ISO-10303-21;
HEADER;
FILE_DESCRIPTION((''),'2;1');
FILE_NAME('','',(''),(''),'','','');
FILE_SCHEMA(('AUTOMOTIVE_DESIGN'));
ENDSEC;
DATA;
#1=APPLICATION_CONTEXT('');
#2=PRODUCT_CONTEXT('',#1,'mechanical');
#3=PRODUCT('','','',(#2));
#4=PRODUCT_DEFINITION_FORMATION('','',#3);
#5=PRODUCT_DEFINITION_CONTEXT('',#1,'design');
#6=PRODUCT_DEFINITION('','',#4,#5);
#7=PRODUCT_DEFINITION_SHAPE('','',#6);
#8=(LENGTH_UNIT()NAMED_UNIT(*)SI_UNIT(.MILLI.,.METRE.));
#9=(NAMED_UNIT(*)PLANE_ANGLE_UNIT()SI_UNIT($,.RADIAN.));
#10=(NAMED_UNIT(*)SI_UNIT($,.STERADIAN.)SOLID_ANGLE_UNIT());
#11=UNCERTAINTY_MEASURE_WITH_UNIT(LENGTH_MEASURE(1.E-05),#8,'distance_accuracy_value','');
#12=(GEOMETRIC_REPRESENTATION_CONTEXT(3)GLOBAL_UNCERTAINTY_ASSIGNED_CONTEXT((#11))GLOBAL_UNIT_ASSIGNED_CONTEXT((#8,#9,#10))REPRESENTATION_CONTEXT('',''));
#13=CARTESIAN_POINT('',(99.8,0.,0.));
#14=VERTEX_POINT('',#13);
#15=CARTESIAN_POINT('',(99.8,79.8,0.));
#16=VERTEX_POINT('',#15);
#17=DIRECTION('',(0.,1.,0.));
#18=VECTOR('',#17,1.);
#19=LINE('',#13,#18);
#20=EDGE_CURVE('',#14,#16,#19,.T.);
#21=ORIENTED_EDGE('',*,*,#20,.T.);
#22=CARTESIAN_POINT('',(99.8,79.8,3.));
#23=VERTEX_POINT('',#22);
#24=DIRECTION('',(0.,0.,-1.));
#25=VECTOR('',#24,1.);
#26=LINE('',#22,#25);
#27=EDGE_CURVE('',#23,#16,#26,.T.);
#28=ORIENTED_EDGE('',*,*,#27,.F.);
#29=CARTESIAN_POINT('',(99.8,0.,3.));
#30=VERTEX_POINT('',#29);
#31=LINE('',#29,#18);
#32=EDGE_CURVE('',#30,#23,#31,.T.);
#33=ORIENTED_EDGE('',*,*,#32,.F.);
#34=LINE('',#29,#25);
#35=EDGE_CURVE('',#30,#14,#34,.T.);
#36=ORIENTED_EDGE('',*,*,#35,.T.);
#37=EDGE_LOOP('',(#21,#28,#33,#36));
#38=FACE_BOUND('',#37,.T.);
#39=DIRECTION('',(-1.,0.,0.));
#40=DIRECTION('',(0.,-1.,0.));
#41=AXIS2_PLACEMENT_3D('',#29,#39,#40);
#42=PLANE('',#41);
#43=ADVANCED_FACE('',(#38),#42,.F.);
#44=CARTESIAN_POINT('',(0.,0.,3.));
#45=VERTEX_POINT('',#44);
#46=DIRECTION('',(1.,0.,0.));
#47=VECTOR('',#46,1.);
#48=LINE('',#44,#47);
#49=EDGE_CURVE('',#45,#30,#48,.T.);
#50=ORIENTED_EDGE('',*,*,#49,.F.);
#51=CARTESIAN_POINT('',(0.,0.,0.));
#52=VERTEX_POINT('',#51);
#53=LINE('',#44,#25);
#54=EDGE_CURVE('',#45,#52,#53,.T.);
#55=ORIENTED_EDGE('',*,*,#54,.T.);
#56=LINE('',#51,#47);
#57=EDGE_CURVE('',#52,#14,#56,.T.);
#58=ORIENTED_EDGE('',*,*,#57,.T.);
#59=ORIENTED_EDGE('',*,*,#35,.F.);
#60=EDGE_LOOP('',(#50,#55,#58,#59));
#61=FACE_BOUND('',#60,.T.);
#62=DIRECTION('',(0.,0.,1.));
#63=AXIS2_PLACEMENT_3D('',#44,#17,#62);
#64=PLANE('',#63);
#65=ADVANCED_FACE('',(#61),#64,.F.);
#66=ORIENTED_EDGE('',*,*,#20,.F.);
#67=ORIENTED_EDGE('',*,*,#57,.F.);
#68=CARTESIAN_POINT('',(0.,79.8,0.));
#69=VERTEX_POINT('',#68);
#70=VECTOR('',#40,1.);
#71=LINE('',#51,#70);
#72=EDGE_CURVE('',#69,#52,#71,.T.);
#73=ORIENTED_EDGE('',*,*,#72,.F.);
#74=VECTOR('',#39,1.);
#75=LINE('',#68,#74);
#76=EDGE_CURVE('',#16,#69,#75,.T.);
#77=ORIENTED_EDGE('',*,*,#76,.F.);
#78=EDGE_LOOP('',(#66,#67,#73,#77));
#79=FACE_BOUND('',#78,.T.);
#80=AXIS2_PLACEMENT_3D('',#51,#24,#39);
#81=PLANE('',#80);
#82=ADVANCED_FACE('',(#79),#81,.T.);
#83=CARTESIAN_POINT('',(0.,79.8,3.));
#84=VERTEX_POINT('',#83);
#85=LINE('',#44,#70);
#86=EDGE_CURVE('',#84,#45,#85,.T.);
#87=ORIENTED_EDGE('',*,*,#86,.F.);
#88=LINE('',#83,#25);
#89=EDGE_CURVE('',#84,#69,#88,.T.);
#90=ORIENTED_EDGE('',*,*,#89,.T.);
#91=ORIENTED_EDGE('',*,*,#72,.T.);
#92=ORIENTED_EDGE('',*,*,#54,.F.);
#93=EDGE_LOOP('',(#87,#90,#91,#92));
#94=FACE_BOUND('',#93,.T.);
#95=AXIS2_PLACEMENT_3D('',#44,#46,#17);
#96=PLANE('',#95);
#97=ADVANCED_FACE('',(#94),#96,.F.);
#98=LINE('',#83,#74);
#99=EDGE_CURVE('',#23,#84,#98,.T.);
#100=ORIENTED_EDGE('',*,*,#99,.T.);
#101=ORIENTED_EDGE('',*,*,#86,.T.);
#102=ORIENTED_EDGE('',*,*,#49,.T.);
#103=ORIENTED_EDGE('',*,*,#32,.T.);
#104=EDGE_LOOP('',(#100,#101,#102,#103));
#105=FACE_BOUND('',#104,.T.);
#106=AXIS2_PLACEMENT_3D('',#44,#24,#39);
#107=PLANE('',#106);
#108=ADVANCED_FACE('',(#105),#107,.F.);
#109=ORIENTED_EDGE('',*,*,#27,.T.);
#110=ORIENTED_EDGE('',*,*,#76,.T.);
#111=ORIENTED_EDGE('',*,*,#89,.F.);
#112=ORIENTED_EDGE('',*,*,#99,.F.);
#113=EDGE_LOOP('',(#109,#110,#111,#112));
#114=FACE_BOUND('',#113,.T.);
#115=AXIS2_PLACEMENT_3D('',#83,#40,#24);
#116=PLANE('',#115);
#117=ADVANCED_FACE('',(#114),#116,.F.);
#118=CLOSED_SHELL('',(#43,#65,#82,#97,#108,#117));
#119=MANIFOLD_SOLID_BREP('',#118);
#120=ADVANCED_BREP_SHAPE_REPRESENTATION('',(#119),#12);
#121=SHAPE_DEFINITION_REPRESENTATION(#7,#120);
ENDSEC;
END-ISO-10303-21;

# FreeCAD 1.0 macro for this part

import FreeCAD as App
import Part
import Sketcher

V = App.Vector
Q = App.Units.Quantity


def add_polygon(sketch, points):
    """Adds a closed chain of lines whose ends are joined by coincident constraints."""
    first, n = sketch.GeometryCount, len(points)
    for a, b in zip(points, points[1:] + points[:1]):
        sketch.addGeometry(Part.LineSegment(App.Vector(*a, 0), App.Vector(*b, 0)), False)
    for i in range(n):
        sketch.addConstraint(Sketcher.Constraint("Coincident", first + i, 2, first + (i + 1) % n, 1))

doc = App.newDocument("Part")
body = doc.addObject("PartDesign::Body", "Body")

# Sketch on XY plane
sketch1 = body.newObject("Sketcher::SketchObject", "Sketch")
sketch1.AttachmentSupport = (doc.getObject("XY_Plane"), [""])
sketch1.MapMode = "FlatFace"
add_polygon(sketch1, [(0, 80), (0, 0), (100, 0), (100, 80)])  # lines 0-3
sketch1.addConstraint([
    Sketcher.Constraint("Vertical", 0),
    Sketcher.Constraint("Horizontal", 1),
    Sketcher.Constraint("Vertical", 2),
    Sketcher.Constraint("Horizontal", 3),
    Sketcher.Constraint("Coincident", 0, 2, -1, 1),
    Sketcher.Constraint("DistanceX", 1, 1, 1, 2, Q("99.8 mm")),
    Sketcher.Constraint("DistanceY", 0, 2, 0, 1, Q("79.8 mm")),
])
pad1 = body.newObject("PartDesign::Pad", "Pad")
pad1.Profile = sketch1
pad1.Length = 3

doc.recompute()
